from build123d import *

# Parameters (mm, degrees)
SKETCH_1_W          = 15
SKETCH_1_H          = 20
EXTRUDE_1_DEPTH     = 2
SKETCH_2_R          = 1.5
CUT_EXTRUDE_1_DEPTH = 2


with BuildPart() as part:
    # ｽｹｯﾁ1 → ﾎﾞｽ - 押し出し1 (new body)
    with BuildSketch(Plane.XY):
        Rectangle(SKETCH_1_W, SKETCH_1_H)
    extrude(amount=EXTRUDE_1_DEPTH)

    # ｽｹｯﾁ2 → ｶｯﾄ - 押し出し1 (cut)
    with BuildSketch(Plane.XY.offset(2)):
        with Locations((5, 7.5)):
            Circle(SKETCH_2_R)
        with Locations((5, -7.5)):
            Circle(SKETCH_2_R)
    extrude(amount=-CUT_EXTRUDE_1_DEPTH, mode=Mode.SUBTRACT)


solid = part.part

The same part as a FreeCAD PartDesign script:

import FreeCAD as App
import Part
import Sketcher
from FreeCAD import Vector
Q = App.Units.Quantity


def add_polygon(sketch, points):
    """Adds a closed chain of lines whose ends are joined by coincident constraints."""
    first, n = sketch.GeometryCount, len(points)
    for a, b in zip(points, points[1:] + points[:1]):
        sketch.addGeometry(Part.LineSegment(App.Vector(*a, 0), App.Vector(*b, 0)), False)
    for i in range(n):
        sketch.addConstraint(Sketcher.Constraint("Coincident", first + i, 2, first + (i + 1) % n, 1))

doc = App.newDocument("Part")
body = doc.addObject("PartDesign::Body", "Body")

# Sketch on XY plane
sketch1 = body.newObject("Sketcher::SketchObject", "Sketch")
sketch1.AttachmentSupport = (doc.getObject("XY_Plane"), [""])
sketch1.MapMode = "FlatFace"
add_polygon(sketch1, [(-8, 10), (-8, -10), (8, -10), (8, 10)])  # lines 0-3
sketch1.addConstraint(Sketcher.Constraint("Vertical", 0))
sketch1.addConstraint(Sketcher.Constraint("Horizontal", 1))
sketch1.addConstraint(Sketcher.Constraint("Vertical", 2))
sketch1.addConstraint(Sketcher.Constraint("Horizontal", 3))
sketch1.addConstraint(Sketcher.Constraint("Symmetric", 0, 2, 2, 2, -1, 1))
sketch1.addConstraint(Sketcher.Constraint("DistanceX", 1, 1, 1, 2, Q("15 mm")))
sketch1.addConstraint(Sketcher.Constraint("DistanceY", 0, 2, 0, 1, Q("20 mm")))
pad1 = body.newObject("PartDesign::Pad", "Pad")
pad1.Profile = sketch1
pad1.Length = 2

# Sketch on XY plane
sketch2 = body.newObject("Sketcher::SketchObject", "Sketch001")
sketch2.AttachmentSupport = (doc.getObject("XY_Plane"), [""])
sketch2.MapMode = "FlatFace"
sketch2.AttachmentOffset = App.Placement(Vector(0, 0, 2), App.Rotation())
sketch2.addGeometry(Part.Circle(Vector(5, 7.5, 0), Vector(0, 0, 1), 1.5), False)
sketch2.addGeometry(Part.Circle(Vector(5, -7.5, 0), Vector(0, 0, 1), 1.5), False)
sketch2.addConstraint(Sketcher.Constraint("Equal", 0, 1))
sketch2.addConstraint(Sketcher.Constraint("Symmetric", 0, 3, 1, 3, -1))
sketch2.addConstraint(Sketcher.Constraint("Diameter", 0, Q("3 mm")))
sketch2.addConstraint(Sketcher.Constraint("DistanceX", -1, 1, 0, 3, Q("5 mm")))
sketch2.addConstraint(Sketcher.Constraint("DistanceY", 1, 3, 0, 3, Q("15 mm")))
pocket1 = body.newObject("PartDesign::Pocket", "Pocket")
pocket1.Profile = sketch2
pocket1.Length = 2

doc.recompute()
